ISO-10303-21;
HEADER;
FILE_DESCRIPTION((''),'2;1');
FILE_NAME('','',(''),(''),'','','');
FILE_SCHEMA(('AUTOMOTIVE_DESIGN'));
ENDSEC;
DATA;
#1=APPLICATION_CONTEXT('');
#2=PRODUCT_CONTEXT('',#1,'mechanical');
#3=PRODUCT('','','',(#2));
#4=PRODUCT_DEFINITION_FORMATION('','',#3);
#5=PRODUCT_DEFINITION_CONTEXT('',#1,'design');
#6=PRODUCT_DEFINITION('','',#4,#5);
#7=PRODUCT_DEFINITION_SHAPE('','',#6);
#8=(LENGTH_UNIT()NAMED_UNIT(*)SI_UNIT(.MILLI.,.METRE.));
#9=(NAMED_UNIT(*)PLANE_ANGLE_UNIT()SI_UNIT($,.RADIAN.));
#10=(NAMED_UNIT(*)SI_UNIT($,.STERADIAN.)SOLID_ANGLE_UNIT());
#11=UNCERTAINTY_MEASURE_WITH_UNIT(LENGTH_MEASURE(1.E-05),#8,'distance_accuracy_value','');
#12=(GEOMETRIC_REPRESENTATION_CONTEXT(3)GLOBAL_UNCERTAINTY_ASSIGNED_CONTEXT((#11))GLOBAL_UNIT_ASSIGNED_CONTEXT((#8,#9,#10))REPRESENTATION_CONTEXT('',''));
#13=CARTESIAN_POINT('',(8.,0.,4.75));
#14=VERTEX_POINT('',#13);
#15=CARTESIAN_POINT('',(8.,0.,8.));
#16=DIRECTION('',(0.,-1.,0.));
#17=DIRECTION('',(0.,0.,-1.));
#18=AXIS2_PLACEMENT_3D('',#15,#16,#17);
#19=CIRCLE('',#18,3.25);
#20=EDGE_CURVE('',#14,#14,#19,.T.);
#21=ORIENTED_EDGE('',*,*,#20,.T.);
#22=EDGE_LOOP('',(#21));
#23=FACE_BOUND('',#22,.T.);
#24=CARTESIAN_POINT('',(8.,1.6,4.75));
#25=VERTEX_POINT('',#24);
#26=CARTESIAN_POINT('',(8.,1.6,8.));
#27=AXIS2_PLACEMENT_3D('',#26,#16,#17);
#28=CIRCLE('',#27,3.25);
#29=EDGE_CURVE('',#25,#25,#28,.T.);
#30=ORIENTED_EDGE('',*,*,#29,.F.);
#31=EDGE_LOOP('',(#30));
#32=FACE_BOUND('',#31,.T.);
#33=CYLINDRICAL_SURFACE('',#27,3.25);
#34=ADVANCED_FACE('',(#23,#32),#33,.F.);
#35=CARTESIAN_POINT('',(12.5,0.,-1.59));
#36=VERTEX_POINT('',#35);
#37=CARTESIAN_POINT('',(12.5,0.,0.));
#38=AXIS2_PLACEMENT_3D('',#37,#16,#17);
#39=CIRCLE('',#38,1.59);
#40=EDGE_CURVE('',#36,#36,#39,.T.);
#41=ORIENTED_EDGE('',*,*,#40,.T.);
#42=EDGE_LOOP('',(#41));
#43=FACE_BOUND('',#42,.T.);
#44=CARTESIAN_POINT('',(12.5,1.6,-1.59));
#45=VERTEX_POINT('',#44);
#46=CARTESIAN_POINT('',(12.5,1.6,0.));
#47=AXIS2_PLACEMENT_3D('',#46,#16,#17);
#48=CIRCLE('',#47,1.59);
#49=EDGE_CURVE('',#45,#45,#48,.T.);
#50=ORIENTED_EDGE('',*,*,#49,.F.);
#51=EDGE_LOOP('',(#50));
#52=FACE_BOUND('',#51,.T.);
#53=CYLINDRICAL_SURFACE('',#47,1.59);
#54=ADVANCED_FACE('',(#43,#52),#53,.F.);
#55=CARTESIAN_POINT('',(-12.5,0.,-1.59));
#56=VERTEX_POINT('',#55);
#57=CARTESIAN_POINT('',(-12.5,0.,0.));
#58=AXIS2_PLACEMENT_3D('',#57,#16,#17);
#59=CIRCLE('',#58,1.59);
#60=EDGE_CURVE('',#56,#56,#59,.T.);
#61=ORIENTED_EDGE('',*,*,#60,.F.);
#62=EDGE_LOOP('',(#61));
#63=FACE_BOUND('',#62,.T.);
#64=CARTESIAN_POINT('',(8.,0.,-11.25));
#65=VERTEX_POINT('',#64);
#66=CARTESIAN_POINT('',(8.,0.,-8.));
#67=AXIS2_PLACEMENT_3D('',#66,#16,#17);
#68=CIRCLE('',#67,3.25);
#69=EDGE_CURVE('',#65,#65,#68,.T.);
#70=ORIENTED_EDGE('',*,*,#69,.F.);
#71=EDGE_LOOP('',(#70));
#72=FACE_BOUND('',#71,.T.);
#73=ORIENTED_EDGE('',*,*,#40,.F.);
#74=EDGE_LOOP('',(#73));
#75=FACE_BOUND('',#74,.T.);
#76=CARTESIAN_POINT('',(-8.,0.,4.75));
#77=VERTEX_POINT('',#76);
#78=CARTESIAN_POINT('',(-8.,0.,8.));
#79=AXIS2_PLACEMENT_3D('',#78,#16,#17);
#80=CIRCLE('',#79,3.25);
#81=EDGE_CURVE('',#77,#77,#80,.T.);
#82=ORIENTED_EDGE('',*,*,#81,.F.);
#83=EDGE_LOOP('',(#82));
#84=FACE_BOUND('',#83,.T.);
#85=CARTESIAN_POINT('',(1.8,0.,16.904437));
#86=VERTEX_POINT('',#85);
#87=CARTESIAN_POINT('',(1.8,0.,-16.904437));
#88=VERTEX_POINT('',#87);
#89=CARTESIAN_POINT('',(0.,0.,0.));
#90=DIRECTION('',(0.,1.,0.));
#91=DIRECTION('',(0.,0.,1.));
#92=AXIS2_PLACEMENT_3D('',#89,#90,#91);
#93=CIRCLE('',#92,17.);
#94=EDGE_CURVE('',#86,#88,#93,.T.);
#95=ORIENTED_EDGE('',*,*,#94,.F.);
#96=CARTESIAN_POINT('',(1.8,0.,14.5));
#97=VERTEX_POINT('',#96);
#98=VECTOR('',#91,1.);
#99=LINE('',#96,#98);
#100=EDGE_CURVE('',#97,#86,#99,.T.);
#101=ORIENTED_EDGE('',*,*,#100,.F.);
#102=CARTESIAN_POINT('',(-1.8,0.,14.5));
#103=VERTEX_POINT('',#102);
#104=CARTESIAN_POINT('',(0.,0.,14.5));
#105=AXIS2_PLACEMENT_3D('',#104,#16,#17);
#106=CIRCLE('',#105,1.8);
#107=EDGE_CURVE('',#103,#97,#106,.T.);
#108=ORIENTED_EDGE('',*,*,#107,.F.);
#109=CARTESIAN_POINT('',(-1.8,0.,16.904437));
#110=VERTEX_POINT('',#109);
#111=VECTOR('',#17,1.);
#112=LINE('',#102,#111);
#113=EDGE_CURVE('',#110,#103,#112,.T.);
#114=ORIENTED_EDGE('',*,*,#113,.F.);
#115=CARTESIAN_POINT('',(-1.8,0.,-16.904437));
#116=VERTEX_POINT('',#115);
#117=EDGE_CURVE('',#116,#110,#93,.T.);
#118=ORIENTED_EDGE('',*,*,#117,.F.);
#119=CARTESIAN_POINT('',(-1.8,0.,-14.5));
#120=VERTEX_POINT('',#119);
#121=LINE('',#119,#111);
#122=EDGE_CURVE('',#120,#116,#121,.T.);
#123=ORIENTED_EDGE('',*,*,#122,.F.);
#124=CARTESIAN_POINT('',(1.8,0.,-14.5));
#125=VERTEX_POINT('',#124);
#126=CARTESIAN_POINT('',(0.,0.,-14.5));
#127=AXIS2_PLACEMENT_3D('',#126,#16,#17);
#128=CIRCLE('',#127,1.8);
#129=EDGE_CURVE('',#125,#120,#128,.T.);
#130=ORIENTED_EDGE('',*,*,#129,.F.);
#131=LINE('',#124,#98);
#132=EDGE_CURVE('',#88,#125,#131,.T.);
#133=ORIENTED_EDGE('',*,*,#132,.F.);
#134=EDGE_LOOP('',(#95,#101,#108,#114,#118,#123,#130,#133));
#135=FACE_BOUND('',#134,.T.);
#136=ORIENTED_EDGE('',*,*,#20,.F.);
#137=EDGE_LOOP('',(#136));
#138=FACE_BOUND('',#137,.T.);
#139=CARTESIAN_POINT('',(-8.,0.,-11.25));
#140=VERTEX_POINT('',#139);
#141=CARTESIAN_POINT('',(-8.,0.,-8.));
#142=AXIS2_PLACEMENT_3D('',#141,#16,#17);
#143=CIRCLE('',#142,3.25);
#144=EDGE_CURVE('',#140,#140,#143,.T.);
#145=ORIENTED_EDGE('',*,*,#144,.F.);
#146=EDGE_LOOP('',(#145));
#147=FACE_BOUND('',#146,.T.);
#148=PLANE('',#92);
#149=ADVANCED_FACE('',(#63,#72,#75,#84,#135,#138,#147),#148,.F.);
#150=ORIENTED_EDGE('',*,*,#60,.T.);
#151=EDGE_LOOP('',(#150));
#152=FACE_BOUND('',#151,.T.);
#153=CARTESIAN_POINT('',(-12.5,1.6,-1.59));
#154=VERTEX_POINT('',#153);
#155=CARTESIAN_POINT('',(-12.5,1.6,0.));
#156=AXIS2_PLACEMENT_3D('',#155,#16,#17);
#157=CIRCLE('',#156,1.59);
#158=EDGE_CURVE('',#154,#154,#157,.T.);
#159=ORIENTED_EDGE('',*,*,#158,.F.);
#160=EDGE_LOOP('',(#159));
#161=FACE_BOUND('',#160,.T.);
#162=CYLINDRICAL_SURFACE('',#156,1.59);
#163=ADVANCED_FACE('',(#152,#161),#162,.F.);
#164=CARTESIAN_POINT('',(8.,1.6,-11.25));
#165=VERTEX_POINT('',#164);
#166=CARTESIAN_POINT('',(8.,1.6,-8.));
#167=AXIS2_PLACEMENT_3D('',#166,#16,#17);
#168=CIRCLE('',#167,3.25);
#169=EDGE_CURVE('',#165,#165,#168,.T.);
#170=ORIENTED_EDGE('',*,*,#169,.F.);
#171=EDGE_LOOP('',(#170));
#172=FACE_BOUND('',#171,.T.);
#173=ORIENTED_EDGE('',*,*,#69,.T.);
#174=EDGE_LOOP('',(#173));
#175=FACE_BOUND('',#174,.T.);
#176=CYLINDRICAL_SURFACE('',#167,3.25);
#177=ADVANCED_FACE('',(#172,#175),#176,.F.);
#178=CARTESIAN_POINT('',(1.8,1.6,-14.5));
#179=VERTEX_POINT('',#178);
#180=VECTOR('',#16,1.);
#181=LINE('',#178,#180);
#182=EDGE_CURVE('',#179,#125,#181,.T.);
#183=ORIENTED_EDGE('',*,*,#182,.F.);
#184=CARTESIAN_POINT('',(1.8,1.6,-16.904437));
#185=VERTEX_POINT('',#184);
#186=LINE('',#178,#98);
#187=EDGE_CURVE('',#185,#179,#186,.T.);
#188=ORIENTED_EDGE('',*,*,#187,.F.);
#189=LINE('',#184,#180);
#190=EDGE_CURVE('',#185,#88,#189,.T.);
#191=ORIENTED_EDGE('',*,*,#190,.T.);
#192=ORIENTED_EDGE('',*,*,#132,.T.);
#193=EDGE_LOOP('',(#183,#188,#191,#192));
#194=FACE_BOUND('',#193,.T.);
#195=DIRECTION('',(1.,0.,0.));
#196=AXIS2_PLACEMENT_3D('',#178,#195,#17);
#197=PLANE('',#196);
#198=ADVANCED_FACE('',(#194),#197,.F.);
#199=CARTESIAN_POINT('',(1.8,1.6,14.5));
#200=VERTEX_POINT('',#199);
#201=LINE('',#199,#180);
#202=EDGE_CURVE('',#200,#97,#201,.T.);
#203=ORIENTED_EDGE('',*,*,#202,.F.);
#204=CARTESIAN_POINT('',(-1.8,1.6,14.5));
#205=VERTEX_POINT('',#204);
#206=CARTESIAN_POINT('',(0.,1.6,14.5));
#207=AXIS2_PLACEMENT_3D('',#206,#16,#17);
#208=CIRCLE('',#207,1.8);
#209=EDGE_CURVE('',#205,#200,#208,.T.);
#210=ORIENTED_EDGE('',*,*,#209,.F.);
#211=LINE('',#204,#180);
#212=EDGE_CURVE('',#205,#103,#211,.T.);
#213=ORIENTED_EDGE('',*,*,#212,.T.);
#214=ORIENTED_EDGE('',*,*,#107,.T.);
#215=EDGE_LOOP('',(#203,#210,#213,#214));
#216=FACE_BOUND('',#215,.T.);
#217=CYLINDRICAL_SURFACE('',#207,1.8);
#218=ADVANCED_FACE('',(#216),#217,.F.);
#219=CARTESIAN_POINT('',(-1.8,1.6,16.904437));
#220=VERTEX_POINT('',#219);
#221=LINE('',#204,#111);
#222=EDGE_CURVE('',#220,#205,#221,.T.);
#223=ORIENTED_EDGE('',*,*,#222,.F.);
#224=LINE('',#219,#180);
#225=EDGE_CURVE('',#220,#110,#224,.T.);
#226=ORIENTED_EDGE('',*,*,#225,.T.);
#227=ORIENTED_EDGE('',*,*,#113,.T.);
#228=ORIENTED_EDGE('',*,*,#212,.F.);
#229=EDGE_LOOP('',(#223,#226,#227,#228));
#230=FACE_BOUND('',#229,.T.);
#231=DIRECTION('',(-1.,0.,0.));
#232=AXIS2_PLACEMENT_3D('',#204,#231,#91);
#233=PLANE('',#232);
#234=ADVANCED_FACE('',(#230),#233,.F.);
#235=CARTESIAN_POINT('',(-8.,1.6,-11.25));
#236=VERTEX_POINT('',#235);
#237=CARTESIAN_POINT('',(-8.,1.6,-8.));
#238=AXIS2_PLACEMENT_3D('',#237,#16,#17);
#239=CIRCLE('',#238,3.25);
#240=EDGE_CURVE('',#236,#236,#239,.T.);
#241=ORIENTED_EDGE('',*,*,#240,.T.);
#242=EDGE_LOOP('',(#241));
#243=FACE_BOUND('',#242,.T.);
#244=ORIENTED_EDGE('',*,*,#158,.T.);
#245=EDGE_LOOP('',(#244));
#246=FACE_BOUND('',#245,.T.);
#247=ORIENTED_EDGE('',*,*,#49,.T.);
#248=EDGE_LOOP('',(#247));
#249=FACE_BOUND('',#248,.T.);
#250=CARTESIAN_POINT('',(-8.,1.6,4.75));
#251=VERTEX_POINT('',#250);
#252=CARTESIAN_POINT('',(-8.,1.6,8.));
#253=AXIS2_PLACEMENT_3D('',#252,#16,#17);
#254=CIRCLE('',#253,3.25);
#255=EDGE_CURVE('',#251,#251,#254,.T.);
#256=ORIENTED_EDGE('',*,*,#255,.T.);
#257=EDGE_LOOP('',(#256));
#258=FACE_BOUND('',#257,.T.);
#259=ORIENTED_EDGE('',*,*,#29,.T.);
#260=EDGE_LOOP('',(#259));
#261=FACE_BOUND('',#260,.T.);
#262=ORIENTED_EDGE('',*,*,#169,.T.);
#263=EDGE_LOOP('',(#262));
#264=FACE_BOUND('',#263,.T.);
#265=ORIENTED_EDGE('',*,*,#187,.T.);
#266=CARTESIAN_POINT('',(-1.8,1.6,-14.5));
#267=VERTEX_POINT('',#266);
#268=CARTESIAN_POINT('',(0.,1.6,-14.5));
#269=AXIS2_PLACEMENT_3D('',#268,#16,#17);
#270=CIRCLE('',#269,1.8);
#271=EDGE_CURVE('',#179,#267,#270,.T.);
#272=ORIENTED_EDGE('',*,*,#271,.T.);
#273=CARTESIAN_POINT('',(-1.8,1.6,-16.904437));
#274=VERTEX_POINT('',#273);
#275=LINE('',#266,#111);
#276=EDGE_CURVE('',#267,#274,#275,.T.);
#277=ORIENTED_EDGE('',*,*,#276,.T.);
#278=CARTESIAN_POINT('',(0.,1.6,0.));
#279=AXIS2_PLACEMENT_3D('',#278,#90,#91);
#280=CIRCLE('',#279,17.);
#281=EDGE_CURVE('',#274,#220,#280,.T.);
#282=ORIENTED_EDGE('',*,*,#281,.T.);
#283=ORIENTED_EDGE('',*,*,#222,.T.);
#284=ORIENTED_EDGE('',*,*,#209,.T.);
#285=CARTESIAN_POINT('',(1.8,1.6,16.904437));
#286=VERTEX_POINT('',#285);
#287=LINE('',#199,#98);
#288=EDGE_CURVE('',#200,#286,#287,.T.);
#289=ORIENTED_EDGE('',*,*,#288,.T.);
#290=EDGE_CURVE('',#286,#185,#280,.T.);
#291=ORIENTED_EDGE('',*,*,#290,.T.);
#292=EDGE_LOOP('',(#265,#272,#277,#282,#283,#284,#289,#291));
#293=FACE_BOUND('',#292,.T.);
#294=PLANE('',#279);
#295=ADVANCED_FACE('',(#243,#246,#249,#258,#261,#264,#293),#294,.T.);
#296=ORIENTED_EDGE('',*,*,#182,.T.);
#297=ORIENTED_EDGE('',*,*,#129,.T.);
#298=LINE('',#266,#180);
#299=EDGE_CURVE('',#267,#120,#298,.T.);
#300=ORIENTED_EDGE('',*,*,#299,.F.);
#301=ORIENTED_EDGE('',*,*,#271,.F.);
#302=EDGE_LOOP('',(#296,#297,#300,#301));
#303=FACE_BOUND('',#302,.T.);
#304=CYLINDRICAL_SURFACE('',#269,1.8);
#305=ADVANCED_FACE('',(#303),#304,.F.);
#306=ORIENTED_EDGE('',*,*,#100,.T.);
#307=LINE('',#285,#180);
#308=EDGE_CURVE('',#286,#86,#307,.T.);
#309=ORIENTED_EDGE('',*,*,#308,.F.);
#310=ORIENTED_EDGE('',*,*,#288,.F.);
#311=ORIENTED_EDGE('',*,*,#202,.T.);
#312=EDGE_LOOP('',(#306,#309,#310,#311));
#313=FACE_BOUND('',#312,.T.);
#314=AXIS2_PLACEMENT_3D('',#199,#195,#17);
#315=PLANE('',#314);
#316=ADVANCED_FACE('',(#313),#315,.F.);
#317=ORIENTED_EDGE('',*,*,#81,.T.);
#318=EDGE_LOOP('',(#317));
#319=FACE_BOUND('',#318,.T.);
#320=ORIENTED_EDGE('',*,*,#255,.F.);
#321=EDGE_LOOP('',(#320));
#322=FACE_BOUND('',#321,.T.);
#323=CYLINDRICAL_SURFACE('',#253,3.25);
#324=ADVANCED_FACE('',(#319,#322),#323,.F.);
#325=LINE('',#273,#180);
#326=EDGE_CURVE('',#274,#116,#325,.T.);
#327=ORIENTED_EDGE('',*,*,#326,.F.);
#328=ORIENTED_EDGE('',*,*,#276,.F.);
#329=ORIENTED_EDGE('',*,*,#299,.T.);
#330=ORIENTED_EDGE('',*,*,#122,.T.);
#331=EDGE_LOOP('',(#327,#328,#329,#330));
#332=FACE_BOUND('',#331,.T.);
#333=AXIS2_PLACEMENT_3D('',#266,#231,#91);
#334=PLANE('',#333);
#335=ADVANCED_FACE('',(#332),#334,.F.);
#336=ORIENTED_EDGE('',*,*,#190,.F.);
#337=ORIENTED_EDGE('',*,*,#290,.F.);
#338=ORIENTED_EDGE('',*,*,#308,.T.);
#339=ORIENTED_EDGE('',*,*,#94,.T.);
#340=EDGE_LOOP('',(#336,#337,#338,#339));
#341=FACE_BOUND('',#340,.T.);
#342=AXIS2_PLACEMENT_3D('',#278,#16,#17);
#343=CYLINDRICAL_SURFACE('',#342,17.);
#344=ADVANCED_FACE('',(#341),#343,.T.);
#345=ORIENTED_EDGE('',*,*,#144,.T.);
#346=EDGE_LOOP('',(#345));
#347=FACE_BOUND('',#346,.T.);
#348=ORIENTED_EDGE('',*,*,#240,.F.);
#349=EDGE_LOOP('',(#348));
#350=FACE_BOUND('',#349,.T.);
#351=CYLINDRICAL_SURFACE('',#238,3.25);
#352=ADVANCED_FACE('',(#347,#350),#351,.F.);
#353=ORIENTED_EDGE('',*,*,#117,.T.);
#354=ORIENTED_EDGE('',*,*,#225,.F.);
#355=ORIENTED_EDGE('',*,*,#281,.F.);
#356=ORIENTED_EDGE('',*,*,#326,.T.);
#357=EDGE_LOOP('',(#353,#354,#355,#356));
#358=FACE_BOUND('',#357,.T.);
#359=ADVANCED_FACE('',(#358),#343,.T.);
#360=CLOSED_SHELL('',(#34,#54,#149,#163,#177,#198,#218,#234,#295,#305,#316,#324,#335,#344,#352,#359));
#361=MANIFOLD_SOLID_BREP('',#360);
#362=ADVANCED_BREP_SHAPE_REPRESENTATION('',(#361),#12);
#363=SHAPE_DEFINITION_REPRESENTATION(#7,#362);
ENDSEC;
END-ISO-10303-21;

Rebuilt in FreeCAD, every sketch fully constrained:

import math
import FreeCAD as App
import Part
import Sketcher
from FreeCAD import Vector
Q = App.Units.Quantity

doc = App.newDocument("Part")
body = doc.addObject("PartDesign::Body", "Body")

# Sketch on XZ plane
sketch1 = doc.addObject("Sketcher::SketchObject", "Sketch")
body.addObject(sketch1)
sketch1.AttachmentSupport = (doc.XZ_Plane, [""])
sketch1.MapMode = "FlatFace"
sketch1.addGeometry(Part.Circle(Vector(0, 0, 0), Vector(0, 0, 1), 17), False)
sketch1.addConstraint([
    Sketcher.Constraint("Coincident", 0, 3, -1, 1),
    Sketcher.Constraint("Diameter", 0, Q("34 mm")),
])
pad1 = doc.addObject("PartDesign::Pad", "Pad")
body.addObject(pad1)
pad1.Profile = sketch1
pad1.Length = 1.6
pad1.Reversed = True

# Sketch on XZ plane
sketch2 = doc.addObject("Sketcher::SketchObject", "Sketch001")
body.addObject(sketch2)
sketch2.AttachmentSupport = (doc.XZ_Plane, [""])
sketch2.MapMode = "FlatFace"
sketch2.addGeometry([
    Part.Circle(Vector(12.5, 0, 0), Vector(0, 0, 1), 1.6),  # 0
    Part.Circle(Vector(-12.5, 0, 0), Vector(0, 0, 1), 1.6),  # 1
    Part.Circle(Vector(8, 8, 0), Vector(0, 0, 1), 3.2),  # 2
    Part.Circle(Vector(8, -8, 0), Vector(0, 0, 1), 3.2),  # 3
    Part.Circle(Vector(-8, -8, 0), Vector(0, 0, 1), 3.2),  # 4
    Part.Circle(Vector(-8, 8, 0), Vector(0, 0, 1), 3.2),  # 5
    Part.LineSegment(Vector(-1.8, 16.9, 0), Vector(-1.8, 14.5, 0)),  # 6
    Part.ArcOfCircle(Part.Circle(Vector(0, 14.5, 0), Vector(0, 0, 1), 1.8), math.radians(180), math.radians(360)),  # 7
    Part.LineSegment(Vector(1.8, 14.5, 0), Vector(1.8, 16.9, 0)),  # 8
    Part.ArcOfCircle(Part.Circle(Vector(0, 0, 0), Vector(0, 0, 1), 17), math.radians(83.92), math.radians(96.08)),  # 9
    Part.LineSegment(Vector(1.8, -16.9, 0), Vector(1.8, -14.5, 0)),  # 10
    Part.ArcOfCircle(Part.Circle(Vector(0, -14.5, 0), Vector(0, 0, 1), 1.8), math.radians(0), math.radians(180)),  # 11
    Part.LineSegment(Vector(-1.8, -14.5, 0), Vector(-1.8, -16.9, 0)),  # 12
    Part.ArcOfCircle(Part.Circle(Vector(0, 0, 0), Vector(0, 0, 1), 17), math.radians(-96.08), math.radians(-83.92)),  # 13
], False)
sketch2.addConstraint([
    Sketcher.Constraint("Tangent", 6, 2, 7, 1),
    Sketcher.Constraint("Tangent", 7, 2, 8, 1),
    Sketcher.Constraint("Coincident", 8, 2, 9, 1),
    Sketcher.Constraint("Coincident", 9, 2, 6, 1),
    Sketcher.Constraint("Tangent", 10, 2, 11, 1),
    Sketcher.Constraint("Tangent", 11, 2, 12, 1),
    Sketcher.Constraint("Coincident", 12, 2, 13, 1),
    Sketcher.Constraint("Coincident", 13, 2, 10, 1),
    Sketcher.Constraint("Vertical", 6),
    Sketcher.Constraint("Vertical", 8),
    Sketcher.Constraint("Vertical", 10),
    Sketcher.Constraint("Vertical", 12),
    Sketcher.Constraint("Coincident", 9, 3, -1, 1),
    Sketcher.Constraint("Coincident", 13, 3, -1, 1),
    Sketcher.Constraint("Equal", 0, 1),
    Sketcher.Constraint("Equal", 2, 3),
    Sketcher.Constraint("Equal", 3, 4),
    Sketcher.Constraint("Equal", 4, 5),
    Sketcher.Constraint("Equal", 7, 11),
    Sketcher.Constraint("Equal", 9, 13),
    Sketcher.Constraint("Symmetric", 0, 3, 1, 3, -1, 1),
    Sketcher.Constraint("Symmetric", 2, 3, 4, 3, -1, 1),
    Sketcher.Constraint("Symmetric", 3, 3, 5, 3, -1, 1),
    Sketcher.Constraint("Symmetric", 7, 3, 11, 3, -1, 1),
    Sketcher.Constraint("Symmetric", 3, 3, 4, 3, -2),
    Sketcher.Constraint("PointOnObject", 0, 3, -1),
    Sketcher.Constraint("PointOnObject", 7, 3, -2),
    Sketcher.Constraint("Radius", 9, Q("17 mm")),
    Sketcher.Constraint("Diameter", 2, Q("6.5 mm")),
    Sketcher.Constraint("Radius", 7, Q("1.8 mm")),
    Sketcher.Constraint("Diameter", 0, Q("3.18 mm")),
    Sketcher.Constraint("DistanceX", -1, 1, 2, 3, Q("8 mm")),
    Sketcher.Constraint("DistanceY", -1, 1, 2, 3, Q("8 mm")),
    Sketcher.Constraint("DistanceX", 1, 3, 0, 3, Q("25 mm")),
    Sketcher.Constraint("DistanceY", -1, 1, 7, 3, Q("14.5 mm")),
])
pocket1 = doc.addObject("PartDesign::Pocket", "Pocket")
body.addObject(pocket1)
pocket1.Profile = sketch2
pocket1.Type = "ThroughAll"

doc.recompute()
